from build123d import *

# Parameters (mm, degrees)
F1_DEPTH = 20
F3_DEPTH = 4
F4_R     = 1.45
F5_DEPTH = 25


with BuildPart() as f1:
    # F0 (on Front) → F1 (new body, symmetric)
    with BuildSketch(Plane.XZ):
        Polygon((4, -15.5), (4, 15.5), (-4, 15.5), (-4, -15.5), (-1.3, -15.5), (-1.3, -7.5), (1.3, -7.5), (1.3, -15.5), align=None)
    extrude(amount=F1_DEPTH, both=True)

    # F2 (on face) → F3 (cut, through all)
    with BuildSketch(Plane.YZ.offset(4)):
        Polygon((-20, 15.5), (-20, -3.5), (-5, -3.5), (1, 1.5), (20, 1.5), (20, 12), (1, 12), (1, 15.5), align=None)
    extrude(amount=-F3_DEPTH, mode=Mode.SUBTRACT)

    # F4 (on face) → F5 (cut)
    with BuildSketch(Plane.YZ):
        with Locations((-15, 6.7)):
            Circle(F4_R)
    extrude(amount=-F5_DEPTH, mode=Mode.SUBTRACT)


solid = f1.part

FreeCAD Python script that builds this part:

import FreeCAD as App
import Part
import Sketcher
from FreeCAD import Vector
Q = App.Units.Quantity

doc = App.newDocument("Part")
body = doc.addObject("PartDesign::Body", "Body")

sketch1 = body.newObject("Sketcher::SketchObject", "Sketch")
sketch1.AttachmentSupport = (doc.getObject("XZ_Plane"), [""])
sketch1.MapMode = "FlatFace"
sketch1.addGeometry([
    Part.LineSegment(Vector(4, -15.5, 0), Vector(4, 15.5, 0)),
    Part.LineSegment(Vector(4, 15.5, 0), Vector(-4, 15.5, 0)),
    Part.LineSegment(Vector(-4, 15.5, 0), Vector(-4, -15.5, 0)),
    Part.LineSegment(Vector(-4, -15.5, 0), Vector(-1.3, -15.5, 0)),
    Part.LineSegment(Vector(-1.3, -15.5, 0), Vector(-1.3, -7.5, 0)),
    Part.LineSegment(Vector(-1.3, -7.5, 0), Vector(1.3, -7.5, 0)),
    Part.LineSegment(Vector(1.3, -7.5, 0), Vector(1.3, -15.5, 0)),
    Part.LineSegment(Vector(1.3, -15.5, 0), Vector(4, -15.5, 0)),
], False)
sketch1.addConstraint([
    Sketcher.Constraint("Coincident", 0, 2, 1, 1),
    Sketcher.Constraint("Coincident", 1, 2, 2, 1),
    Sketcher.Constraint("Coincident", 2, 2, 3, 1),
    Sketcher.Constraint("Coincident", 3, 2, 4, 1),
    Sketcher.Constraint("Coincident", 4, 2, 5, 1),
    Sketcher.Constraint("Coincident", 5, 2, 6, 1),
    Sketcher.Constraint("Coincident", 6, 2, 7, 1),
    Sketcher.Constraint("Coincident", 7, 2, 0, 1),
    Sketcher.Constraint("Vertical", 0),
    Sketcher.Constraint("Horizontal", 1),
    Sketcher.Constraint("Vertical", 2),
    Sketcher.Constraint("Horizontal", 3),
    Sketcher.Constraint("Vertical", 4),
    Sketcher.Constraint("Horizontal", 5),
    Sketcher.Constraint("Vertical", 6),
    Sketcher.Constraint("Horizontal", 7),
    Sketcher.Constraint("Symmetric", 0, 2, 2, 2, -1, 1),
    Sketcher.Constraint("Symmetric", 3, 2, 6, 2, -2),
    Sketcher.Constraint("Equal", 1, 4),
    Sketcher.Constraint("DistanceX", 1, 2, 1, 1, Q("8 mm")),
    Sketcher.Constraint("DistanceY", 0, 1, 0, 2, Q("31 mm")),
    Sketcher.Constraint("DistanceX", 3, 1, 3, 2, Q("2.7 mm")),
])
pad1 = body.newObject("PartDesign::Pad", "Pad")
pad1.Profile = sketch1
pad1.Length = 40
pad1.Midplane = True

sketch2 = body.newObject("Sketcher::SketchObject", "Sketch001")
sketch2.AttachmentSupport = (doc.getObject("YZ_Plane"), [""])
sketch2.MapMode = "FlatFace"
sketch2.AttachmentOffset = App.Placement(Vector(0, 0, 4), App.Rotation())
sketch2.addGeometry([
    Part.LineSegment(Vector(-20, 15.5, 0), Vector(-20, -3.5, 0)),
    Part.LineSegment(Vector(-20, -3.5, 0), Vector(-5, -3.5, 0)),
    Part.LineSegment(Vector(-5, -3.5, 0), Vector(1, 1.5, 0)),
    Part.LineSegment(Vector(1, 1.5, 0), Vector(20, 1.5, 0)),
    Part.LineSegment(Vector(20, 1.5, 0), Vector(20, 12, 0)),
    Part.LineSegment(Vector(20, 12, 0), Vector(1, 12, 0)),
    Part.LineSegment(Vector(1, 12, 0), Vector(1, 15.5, 0)),
    Part.LineSegment(Vector(1, 15.5, 0), Vector(-20, 15.5, 0)),
], False)
sketch2.addConstraint([
    Sketcher.Constraint("Coincident", 0, 2, 1, 1),
    Sketcher.Constraint("Coincident", 1, 2, 2, 1),
    Sketcher.Constraint("Coincident", 2, 2, 3, 1),
    Sketcher.Constraint("Coincident", 3, 2, 4, 1),
    Sketcher.Constraint("Coincident", 4, 2, 5, 1),
    Sketcher.Constraint("Coincident", 5, 2, 6, 1),
    Sketcher.Constraint("Coincident", 6, 2, 7, 1),
    Sketcher.Constraint("Coincident", 7, 2, 0, 1),
    Sketcher.Constraint("Vertical", 0),
    Sketcher.Constraint("Horizontal", 1),
    Sketcher.Constraint("Horizontal", 3),
    Sketcher.Constraint("Vertical", 4),
    Sketcher.Constraint("Horizontal", 5),
    Sketcher.Constraint("Vertical", 6),
    Sketcher.Constraint("Horizontal", 7),
    Sketcher.Constraint("Vertical", 2, 2, 5, 2),
    Sketcher.Constraint("Equal", 5, 0),
    Sketcher.Constraint("DistanceX", 1, 1, 1, 2, Q("15 mm")),
    Sketcher.Constraint("DistanceX", 3, 1, 3, 2, Q("19 mm")),
    Sketcher.Constraint("DistanceX", 7, 2, 7, 1, Q("21 mm")),
    Sketcher.Constraint("DistanceY", 4, 1, 4, 2, Q("10.5 mm")),
    Sketcher.Constraint("DistanceY", 6, 1, 6, 2, Q("3.5 mm")),
    Sketcher.Constraint("DistanceX", 0, 2, -1, 1, Q("20 mm")),
    Sketcher.Constraint("DistanceY", -1, 1, 4, 2, Q("12 mm")),
])
pocket1 = body.newObject("PartDesign::Pocket", "Pocket")
pocket1.Profile = sketch2
pocket1.Length = 4

sketch3 = body.newObject("Sketcher::SketchObject", "Sketch002")
sketch3.AttachmentSupport = (doc.getObject("YZ_Plane"), [""])
sketch3.MapMode = "FlatFace"
sketch3.addGeometry(Part.Circle(Vector(-15, 6.7, 0), Vector(0, 0, 1), 1.45), False)
sketch3.addConstraint([
    Sketcher.Constraint("Diameter", 0, Q("2.9 mm")),
    Sketcher.Constraint("DistanceX", 0, 3, -1, 1, Q("15 mm")),
    Sketcher.Constraint("DistanceY", -1, 1, 0, 3, Q("6.7 mm")),
])
pocket2 = body.newObject("PartDesign::Pocket", "Pocket001")
pocket2.Profile = sketch3
pocket2.Length = 25

doc.recompute()
